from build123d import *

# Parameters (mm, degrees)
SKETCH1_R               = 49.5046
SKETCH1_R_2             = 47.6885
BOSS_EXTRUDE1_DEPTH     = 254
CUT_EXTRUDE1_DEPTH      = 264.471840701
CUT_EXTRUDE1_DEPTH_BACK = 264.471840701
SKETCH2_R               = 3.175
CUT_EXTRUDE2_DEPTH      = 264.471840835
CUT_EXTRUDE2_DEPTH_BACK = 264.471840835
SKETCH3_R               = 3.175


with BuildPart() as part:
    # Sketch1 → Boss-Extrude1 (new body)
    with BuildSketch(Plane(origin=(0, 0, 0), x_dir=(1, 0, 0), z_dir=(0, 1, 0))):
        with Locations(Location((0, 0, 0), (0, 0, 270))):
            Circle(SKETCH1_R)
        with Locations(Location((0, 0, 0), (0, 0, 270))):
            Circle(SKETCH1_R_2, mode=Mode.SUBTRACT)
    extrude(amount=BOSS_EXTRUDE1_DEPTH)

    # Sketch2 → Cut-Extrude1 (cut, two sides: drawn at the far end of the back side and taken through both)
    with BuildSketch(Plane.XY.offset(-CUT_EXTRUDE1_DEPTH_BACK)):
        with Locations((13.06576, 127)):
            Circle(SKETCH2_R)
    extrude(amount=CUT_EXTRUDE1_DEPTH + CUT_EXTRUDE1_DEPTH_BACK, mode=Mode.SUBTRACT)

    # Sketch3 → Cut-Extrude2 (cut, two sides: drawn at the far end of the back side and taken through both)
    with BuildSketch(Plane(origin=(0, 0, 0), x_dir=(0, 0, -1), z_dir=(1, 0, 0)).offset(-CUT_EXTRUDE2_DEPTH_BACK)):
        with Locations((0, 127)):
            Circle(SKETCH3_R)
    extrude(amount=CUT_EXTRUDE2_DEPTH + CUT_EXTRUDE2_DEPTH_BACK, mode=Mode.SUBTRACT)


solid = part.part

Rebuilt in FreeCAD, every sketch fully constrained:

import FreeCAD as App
import Part
import Sketcher
from FreeCAD import Vector
Q = App.Units.Quantity

doc = App.newDocument("Part")
body = doc.addObject("PartDesign::Body", "Body")

# Sketch on XZ plane
sketch1 = doc.addObject("Sketcher::SketchObject", "Sketch")
body.addObject(sketch1)
sketch1.AttachmentSupport = (doc.XZ_Plane, [""])
sketch1.MapMode = "FlatFace"
sketch1.addGeometry(Part.Circle(Vector(0, 0, 0), Vector(0, 0, 1), 50), False)
sketch1.addGeometry(Part.Circle(Vector(0, 0, 0), Vector(0, 0, 1), 48), False)
sketch1.addConstraint(Sketcher.Constraint("Coincident", 0, 3, -1, 1))
sketch1.addConstraint(Sketcher.Constraint("Coincident", 1, 3, -1, 1))
sketch1.addConstraint(Sketcher.Constraint("Diameter", 0, Q("3.898 in")))
sketch1.addConstraint(Sketcher.Constraint("Diameter", 1, Q("3.755 in")))
pad1 = doc.addObject("PartDesign::Pad", "Pad")
body.addObject(pad1)
pad1.Profile = sketch1
pad1.Length = Q("10 in")
pad1.Reversed = True

# Sketch on XY plane
sketch2 = doc.addObject("Sketcher::SketchObject", "Sketch001")
body.addObject(sketch2)
sketch2.AttachmentSupport = (doc.XY_Plane, [""])
sketch2.MapMode = "FlatFace"
sketch2.addGeometry(Part.Circle(Vector(13.1, 127, 0), Vector(0, 0, 1), 3.2), False)
sketch2.addConstraint(Sketcher.Constraint("Diameter", 0, Q("0.25 in")))
sketch2.addConstraint(Sketcher.Constraint("DistanceY", -1, 1, 0, 3, Q("5 in")))
sketch2.addConstraint(Sketcher.Constraint("DistanceX", -1, 1, 0, 3, Q("0.5144 in")))
pocket1 = doc.addObject("PartDesign::Pocket", "Pocket")
body.addObject(pocket1)
pocket1.Profile = sketch2
pocket1.Type = "ThroughAll"
pocket1.Midplane = True

# Sketch on YZ plane
sketch3 = doc.addObject("Sketcher::SketchObject", "Sketch002")
body.addObject(sketch3)
sketch3.AttachmentSupport = (doc.YZ_Plane, [""])
sketch3.MapMode = "FlatFace"
sketch3.addGeometry(Part.Circle(Vector(127, 0, 0), Vector(0, 0, 1), 3.2), False)
sketch3.addConstraint(Sketcher.Constraint("PointOnObject", 0, 3, -1))
sketch3.addConstraint(Sketcher.Constraint("Diameter", 0, Q("0.25 in")))
sketch3.addConstraint(Sketcher.Constraint("DistanceX", -1, 1, 0, 3, Q("5 in")))
pocket2 = doc.addObject("PartDesign::Pocket", "Pocket001")
body.addObject(pocket2)
pocket2.Profile = sketch3
pocket2.Type = "ThroughAll"
pocket2.Midplane = True

doc.recompute()
